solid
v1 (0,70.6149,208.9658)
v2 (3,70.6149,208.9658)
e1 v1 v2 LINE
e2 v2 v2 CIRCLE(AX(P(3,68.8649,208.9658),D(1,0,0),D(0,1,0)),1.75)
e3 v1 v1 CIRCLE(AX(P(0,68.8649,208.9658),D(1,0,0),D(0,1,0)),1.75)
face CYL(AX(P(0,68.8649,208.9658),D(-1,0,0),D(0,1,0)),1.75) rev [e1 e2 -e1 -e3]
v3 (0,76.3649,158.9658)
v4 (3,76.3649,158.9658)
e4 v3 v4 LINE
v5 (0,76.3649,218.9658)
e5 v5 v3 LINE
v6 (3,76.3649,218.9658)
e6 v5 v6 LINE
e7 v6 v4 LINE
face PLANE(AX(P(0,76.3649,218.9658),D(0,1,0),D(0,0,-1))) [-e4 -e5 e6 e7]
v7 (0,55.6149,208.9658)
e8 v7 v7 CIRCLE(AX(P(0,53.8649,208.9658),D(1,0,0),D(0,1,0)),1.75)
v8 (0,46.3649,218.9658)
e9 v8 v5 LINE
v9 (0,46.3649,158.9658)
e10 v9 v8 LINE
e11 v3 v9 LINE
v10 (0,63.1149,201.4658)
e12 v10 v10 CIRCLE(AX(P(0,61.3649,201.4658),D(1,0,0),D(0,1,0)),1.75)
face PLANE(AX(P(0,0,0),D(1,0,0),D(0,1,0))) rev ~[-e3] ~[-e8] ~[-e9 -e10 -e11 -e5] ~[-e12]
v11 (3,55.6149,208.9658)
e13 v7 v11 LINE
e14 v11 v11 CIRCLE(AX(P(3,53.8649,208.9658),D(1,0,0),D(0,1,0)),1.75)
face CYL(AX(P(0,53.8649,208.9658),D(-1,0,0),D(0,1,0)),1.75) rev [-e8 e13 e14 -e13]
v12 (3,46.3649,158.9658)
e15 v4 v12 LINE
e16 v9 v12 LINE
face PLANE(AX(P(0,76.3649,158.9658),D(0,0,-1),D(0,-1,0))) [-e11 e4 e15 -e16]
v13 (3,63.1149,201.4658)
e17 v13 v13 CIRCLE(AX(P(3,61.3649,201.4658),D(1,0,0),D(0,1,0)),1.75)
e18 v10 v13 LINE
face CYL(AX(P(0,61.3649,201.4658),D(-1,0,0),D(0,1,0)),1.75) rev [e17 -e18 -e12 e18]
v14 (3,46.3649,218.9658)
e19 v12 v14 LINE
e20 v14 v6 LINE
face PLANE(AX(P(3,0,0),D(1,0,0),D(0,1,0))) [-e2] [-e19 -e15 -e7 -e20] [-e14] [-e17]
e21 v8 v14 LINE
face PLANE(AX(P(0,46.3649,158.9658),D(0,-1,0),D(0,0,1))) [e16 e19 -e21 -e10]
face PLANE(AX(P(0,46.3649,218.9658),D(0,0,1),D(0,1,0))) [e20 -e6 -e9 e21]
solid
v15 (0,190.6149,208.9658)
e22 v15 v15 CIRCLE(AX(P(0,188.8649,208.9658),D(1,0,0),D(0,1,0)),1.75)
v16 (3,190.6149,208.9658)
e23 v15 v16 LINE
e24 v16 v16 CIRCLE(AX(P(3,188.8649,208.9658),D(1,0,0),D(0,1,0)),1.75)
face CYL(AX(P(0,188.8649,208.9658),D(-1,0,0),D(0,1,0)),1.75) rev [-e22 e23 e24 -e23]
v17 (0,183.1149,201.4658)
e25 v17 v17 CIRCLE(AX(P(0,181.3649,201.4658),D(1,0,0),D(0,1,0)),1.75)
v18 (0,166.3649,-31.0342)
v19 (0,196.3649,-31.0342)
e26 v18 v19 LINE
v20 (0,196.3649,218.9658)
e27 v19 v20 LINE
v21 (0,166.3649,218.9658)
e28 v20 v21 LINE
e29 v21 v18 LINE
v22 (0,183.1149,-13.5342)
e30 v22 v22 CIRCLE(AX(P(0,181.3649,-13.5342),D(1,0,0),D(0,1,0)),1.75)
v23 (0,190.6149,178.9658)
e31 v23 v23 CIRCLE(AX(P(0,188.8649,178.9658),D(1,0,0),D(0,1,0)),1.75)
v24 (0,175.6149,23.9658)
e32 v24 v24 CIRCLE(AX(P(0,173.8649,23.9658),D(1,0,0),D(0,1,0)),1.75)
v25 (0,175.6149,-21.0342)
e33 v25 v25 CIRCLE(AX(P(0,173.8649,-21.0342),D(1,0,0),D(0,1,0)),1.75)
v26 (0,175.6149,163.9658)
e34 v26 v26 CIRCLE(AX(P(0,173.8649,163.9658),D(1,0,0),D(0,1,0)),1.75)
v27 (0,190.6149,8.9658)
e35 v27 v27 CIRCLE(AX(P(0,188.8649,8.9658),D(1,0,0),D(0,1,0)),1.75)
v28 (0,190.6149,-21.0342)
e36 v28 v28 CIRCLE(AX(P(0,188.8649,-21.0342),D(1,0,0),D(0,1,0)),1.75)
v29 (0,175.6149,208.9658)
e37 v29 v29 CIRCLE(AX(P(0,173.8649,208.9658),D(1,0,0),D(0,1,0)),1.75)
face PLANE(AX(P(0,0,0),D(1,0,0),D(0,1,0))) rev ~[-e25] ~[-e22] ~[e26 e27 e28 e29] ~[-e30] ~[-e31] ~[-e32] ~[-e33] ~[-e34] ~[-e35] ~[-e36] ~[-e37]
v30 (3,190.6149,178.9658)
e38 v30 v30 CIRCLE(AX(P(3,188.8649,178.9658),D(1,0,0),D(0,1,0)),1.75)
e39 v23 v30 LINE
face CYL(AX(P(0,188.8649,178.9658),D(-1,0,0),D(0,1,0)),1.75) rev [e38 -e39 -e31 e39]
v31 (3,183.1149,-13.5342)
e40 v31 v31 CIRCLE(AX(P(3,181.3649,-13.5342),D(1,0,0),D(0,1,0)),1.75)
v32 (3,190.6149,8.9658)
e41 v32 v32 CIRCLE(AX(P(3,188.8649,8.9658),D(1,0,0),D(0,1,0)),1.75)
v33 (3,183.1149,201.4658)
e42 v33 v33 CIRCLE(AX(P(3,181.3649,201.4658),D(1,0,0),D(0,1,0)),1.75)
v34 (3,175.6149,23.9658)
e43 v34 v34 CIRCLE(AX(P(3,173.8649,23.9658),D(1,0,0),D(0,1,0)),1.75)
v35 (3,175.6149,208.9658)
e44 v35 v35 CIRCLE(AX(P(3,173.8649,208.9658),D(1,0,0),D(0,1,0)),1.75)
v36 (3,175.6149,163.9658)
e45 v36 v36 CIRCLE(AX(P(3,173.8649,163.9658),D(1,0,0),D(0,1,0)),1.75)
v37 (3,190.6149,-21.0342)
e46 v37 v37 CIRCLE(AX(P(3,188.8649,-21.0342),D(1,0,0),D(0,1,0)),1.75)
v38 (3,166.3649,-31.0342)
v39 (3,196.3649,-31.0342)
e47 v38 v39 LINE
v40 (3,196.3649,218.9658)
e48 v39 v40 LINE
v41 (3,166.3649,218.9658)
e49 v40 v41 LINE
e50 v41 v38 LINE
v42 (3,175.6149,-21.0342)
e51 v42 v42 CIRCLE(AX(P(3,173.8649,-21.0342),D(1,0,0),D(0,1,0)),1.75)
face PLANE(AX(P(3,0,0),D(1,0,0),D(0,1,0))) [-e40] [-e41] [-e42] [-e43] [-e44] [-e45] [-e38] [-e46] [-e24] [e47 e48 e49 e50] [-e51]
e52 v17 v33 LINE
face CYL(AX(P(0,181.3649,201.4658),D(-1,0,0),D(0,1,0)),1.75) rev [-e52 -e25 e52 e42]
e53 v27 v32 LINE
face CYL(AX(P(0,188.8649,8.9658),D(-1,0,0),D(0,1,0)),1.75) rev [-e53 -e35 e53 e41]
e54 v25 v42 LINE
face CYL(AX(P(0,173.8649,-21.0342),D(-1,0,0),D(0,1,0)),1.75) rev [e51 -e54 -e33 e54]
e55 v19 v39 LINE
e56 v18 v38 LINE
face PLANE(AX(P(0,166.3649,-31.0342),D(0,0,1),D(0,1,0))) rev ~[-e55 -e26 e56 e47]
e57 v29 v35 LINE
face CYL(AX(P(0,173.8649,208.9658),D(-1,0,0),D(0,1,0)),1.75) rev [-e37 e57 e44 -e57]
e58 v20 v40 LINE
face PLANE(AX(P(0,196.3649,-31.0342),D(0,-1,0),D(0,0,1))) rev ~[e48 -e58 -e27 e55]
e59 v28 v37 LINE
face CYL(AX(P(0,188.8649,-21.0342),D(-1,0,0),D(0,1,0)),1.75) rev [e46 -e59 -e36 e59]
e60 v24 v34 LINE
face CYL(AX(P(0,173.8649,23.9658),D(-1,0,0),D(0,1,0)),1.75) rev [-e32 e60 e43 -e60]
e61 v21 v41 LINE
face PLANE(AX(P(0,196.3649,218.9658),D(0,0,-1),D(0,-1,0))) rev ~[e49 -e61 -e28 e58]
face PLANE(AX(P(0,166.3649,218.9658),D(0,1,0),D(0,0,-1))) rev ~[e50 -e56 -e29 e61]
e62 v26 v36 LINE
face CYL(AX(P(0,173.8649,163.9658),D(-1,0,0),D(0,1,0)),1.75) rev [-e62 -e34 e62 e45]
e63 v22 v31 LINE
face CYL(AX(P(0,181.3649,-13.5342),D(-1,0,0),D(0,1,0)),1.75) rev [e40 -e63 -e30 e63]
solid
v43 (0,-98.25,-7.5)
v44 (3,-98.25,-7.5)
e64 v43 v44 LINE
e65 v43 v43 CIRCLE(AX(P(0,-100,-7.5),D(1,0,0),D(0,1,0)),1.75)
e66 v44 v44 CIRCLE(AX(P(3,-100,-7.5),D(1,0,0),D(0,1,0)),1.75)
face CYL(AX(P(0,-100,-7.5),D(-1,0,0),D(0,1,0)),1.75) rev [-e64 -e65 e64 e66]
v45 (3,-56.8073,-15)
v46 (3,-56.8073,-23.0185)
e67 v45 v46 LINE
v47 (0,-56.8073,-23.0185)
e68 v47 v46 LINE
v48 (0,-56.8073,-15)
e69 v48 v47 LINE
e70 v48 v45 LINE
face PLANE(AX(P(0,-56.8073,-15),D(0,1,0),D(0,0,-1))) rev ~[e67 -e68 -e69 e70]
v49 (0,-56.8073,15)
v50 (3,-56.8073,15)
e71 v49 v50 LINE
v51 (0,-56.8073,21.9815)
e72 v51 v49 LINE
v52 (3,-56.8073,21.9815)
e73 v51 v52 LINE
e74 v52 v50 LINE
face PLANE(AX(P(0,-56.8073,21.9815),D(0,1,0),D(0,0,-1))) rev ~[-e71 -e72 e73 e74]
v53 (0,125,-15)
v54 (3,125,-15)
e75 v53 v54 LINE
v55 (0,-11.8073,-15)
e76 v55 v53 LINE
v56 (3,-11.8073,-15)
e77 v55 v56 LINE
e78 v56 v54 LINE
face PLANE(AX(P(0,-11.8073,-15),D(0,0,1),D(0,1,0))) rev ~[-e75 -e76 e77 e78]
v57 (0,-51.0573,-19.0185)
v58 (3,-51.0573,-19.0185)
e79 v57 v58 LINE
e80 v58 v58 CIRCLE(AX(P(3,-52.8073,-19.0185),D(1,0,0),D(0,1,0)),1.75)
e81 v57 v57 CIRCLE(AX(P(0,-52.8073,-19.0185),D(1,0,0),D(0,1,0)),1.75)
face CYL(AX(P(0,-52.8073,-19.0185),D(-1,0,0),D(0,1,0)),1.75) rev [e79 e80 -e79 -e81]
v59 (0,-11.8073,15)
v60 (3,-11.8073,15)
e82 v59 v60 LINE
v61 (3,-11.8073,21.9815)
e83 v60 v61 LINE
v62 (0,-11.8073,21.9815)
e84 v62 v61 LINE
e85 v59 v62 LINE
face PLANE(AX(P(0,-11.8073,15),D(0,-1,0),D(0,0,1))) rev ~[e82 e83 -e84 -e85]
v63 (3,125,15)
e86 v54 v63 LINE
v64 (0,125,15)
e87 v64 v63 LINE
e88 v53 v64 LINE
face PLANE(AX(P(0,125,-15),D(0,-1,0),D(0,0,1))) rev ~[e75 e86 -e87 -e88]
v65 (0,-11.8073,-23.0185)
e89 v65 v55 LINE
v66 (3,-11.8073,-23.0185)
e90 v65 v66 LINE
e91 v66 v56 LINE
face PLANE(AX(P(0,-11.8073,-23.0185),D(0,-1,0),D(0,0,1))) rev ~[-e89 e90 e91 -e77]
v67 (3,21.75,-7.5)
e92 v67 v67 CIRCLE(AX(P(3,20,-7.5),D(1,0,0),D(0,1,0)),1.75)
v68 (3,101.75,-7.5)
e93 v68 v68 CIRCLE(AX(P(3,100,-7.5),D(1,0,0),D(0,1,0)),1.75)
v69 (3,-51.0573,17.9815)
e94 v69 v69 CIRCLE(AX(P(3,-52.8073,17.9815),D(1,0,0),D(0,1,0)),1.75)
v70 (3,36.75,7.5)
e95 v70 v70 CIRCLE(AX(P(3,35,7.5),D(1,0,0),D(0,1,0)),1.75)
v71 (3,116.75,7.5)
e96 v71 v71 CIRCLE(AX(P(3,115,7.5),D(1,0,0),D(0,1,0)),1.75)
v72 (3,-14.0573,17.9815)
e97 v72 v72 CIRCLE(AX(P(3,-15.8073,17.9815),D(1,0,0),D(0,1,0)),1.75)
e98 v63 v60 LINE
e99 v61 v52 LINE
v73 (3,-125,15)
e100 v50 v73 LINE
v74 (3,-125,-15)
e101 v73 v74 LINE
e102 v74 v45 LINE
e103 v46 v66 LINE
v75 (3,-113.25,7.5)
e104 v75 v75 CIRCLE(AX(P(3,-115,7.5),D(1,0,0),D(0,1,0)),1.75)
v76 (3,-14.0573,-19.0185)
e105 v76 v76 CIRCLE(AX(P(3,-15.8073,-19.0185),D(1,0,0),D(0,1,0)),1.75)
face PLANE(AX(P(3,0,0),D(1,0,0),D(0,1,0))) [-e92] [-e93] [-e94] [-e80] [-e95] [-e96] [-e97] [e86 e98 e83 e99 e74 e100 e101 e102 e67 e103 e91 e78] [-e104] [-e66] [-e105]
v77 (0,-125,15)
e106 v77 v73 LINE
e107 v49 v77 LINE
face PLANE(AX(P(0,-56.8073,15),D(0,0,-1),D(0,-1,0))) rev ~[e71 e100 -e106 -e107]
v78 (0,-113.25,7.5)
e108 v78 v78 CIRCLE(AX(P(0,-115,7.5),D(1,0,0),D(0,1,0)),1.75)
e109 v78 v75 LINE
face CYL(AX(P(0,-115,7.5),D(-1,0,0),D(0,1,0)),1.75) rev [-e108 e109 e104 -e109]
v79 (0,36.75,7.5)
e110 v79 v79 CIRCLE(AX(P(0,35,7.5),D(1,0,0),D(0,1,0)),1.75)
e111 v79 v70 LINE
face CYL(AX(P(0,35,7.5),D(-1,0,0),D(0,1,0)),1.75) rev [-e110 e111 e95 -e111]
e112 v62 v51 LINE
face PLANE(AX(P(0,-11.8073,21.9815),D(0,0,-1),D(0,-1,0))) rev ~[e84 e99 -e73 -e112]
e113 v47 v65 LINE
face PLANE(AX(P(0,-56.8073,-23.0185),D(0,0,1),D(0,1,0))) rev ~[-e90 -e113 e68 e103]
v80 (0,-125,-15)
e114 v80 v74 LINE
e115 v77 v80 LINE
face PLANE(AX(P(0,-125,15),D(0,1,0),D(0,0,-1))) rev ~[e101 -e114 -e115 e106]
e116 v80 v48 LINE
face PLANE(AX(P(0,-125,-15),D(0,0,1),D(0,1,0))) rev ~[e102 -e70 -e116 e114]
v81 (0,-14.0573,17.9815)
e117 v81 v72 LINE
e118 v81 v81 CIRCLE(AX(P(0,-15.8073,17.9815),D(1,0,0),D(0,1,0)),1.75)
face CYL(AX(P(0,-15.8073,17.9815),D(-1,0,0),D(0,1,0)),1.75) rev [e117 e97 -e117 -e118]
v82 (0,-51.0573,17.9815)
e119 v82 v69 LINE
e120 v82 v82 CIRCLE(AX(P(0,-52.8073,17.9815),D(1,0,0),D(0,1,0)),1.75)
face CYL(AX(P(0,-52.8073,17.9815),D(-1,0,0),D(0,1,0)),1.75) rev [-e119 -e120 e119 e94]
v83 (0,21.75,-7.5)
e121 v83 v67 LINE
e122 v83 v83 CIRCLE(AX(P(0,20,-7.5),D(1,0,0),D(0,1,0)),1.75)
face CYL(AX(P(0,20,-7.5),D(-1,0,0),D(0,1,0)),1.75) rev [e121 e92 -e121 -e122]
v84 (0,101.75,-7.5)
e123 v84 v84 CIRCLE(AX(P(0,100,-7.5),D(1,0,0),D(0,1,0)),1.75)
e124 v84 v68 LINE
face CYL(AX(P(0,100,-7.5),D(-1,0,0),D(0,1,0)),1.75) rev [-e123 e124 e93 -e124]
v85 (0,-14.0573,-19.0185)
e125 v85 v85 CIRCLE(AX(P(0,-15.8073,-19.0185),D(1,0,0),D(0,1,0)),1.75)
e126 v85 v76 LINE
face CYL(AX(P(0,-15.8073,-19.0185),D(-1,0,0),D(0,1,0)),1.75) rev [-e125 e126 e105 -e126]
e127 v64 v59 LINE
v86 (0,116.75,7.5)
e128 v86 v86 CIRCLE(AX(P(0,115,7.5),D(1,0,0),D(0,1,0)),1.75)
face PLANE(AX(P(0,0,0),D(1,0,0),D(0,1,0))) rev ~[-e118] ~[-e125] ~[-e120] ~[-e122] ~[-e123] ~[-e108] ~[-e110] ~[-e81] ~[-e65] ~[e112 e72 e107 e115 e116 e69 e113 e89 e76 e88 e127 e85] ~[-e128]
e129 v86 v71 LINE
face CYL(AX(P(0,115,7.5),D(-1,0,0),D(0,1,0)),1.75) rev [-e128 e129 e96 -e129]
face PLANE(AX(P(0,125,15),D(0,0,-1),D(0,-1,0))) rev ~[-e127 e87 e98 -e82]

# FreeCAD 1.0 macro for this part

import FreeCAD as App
import Part
import Sketcher

V = App.Vector


def add_polygon(sketch, points):
    """Adds a closed chain of lines whose ends are joined by coincident constraints."""
    first, n = sketch.GeometryCount, len(points)
    for a, b in zip(points, points[1:] + points[:1]):
        sketch.addGeometry(Part.LineSegment(App.Vector(*a, 0), App.Vector(*b, 0)), False)
    for i in range(n):
        sketch.addConstraint(Sketcher.Constraint("Coincident", first + i, 2, first + (i + 1) % n, 1))

doc = App.newDocument("Part")
body = doc.addObject("PartDesign::Body", "Body")
body.AllowCompound = True

# Sketch on YZ plane
sketch1 = doc.addObject("Sketcher::SketchObject", "Sketch")
body.addObject(sketch1)
sketch1.AttachmentSupport = (doc.YZ_Plane, [""])
sketch1.MapMode = "FlatFace"
add_polygon(sketch1, [(125, -15), (125, 15), (-11.8, 15), (-11.8, 22), (-56.8, 22), (-56.8, 15), (-125, 15), (-125, -15), (-56.8, -15), (-56.8, -23), (-11.8, -23), (-11.8, -15)])  # lines 0-11
sketch1.addGeometry(Part.Circle(V(20, -7.5, 0), V(0, 0, 1), 1.8), False)  # 12
sketch1.addGeometry(Part.Circle(V(35, 7.5, 0), V(0, 0, 1), 1.8), False)  # 13
sketch1.addGeometry(Part.Circle(V(100, -7.5, 0), V(0, 0, 1), 1.8), False)  # 14
sketch1.addGeometry(Part.Circle(V(115, 7.5, 0), V(0, 0, 1), 1.8), False)  # 15
sketch1.addGeometry(Part.Circle(V(-15.8, 18, 0), V(0, 0, 1), 1.8), False)  # 16
sketch1.addGeometry(Part.Circle(V(-52.8, 18, 0), V(0, 0, 1), 1.8), False)  # 17
sketch1.addGeometry(Part.Circle(V(-15.8, -19, 0), V(0, 0, 1), 1.8), False)  # 18
sketch1.addGeometry(Part.Circle(V(-52.8, -19, 0), V(0, 0, 1), 1.8), False)  # 19
sketch1.addGeometry(Part.Circle(V(-115, 7.5, 0), V(0, 0, 1), 1.8), False)  # 20
sketch1.addGeometry(Part.Circle(V(-100, -7.5, 0), V(0, 0, 1), 1.8), False)  # 21
add_polygon(sketch1, [(196.4, -31), (196.4, 219), (166.4, 219), (166.4, -31)])  # lines 22-25
sketch1.addGeometry(Part.Circle(V(173.9, -21, 0), V(0, 0, 1), 1.8), False)  # 26
sketch1.addGeometry(Part.Circle(V(188.9, -21, 0), V(0, 0, 1), 1.8), False)  # 27
sketch1.addGeometry(Part.Circle(V(181.4, -13.5, 0), V(0, 0, 1), 1.8), False)  # 28
sketch1.addGeometry(Part.Circle(V(188.9, 9, 0), V(0, 0, 1), 1.8), False)  # 29
sketch1.addGeometry(Part.Circle(V(173.9, 24, 0), V(0, 0, 1), 1.8), False)  # 30
sketch1.addGeometry(Part.Circle(V(173.9, 164, 0), V(0, 0, 1), 1.8), False)  # 31
sketch1.addGeometry(Part.Circle(V(188.9, 179, 0), V(0, 0, 1), 1.8), False)  # 32
sketch1.addGeometry(Part.Circle(V(181.4, 201.5, 0), V(0, 0, 1), 1.8), False)  # 33
sketch1.addGeometry(Part.Circle(V(173.9, 209, 0), V(0, 0, 1), 1.8), False)  # 34
sketch1.addGeometry(Part.Circle(V(188.9, 209, 0), V(0, 0, 1), 1.8), False)  # 35
add_polygon(sketch1, [(76.4, 219), (46.4, 219), (46.4, 159), (76.4, 159)])  # lines 36-39
sketch1.addGeometry(Part.Circle(V(61.4, 201.5, 0), V(0, 0, 1), 1.8), False)  # 40
sketch1.addGeometry(Part.Circle(V(53.9, 209, 0), V(0, 0, 1), 1.8), False)  # 41
sketch1.addGeometry(Part.Circle(V(68.9, 209, 0), V(0, 0, 1), 1.8), False)  # 42
sketch1.addConstraint(Sketcher.Constraint("Vertical", 0))
sketch1.addConstraint(Sketcher.Constraint("Horizontal", 1))
sketch1.addConstraint(Sketcher.Constraint("Vertical", 2))
sketch1.addConstraint(Sketcher.Constraint("Horizontal", 3))
sketch1.addConstraint(Sketcher.Constraint("Vertical", 4))
sketch1.addConstraint(Sketcher.Constraint("Horizontal", 5))
sketch1.addConstraint(Sketcher.Constraint("Vertical", 6))
sketch1.addConstraint(Sketcher.Constraint("Horizontal", 7))
sketch1.addConstraint(Sketcher.Constraint("Vertical", 8))
sketch1.addConstraint(Sketcher.Constraint("Horizontal", 9))
sketch1.addConstraint(Sketcher.Constraint("Vertical", 10))
sketch1.addConstraint(Sketcher.Constraint("Horizontal", 11))
sketch1.addConstraint(Sketcher.Constraint("Vertical", 22))
sketch1.addConstraint(Sketcher.Constraint("Horizontal", 23))
sketch1.addConstraint(Sketcher.Constraint("Vertical", 24))
sketch1.addConstraint(Sketcher.Constraint("Horizontal", 25))
sketch1.addConstraint(Sketcher.Constraint("Horizontal", 36))
sketch1.addConstraint(Sketcher.Constraint("Vertical", 37))
sketch1.addConstraint(Sketcher.Constraint("Horizontal", 38))
sketch1.addConstraint(Sketcher.Constraint("Vertical", 39))
sketch1.addConstraint(Sketcher.Constraint("Equal", 12, 13))
sketch1.addConstraint(Sketcher.Constraint("Equal", 13, 14))
sketch1.addConstraint(Sketcher.Constraint("Equal", 14, 15))
sketch1.addConstraint(Sketcher.Constraint("Equal", 15, 16))
sketch1.addConstraint(Sketcher.Constraint("Equal", 16, 17))
sketch1.addConstraint(Sketcher.Constraint("Equal", 17, 18))
sketch1.addConstraint(Sketcher.Constraint("Equal", 18, 19))
sketch1.addConstraint(Sketcher.Constraint("Equal", 19, 20))
sketch1.addConstraint(Sketcher.Constraint("Equal", 20, 21))
sketch1.addConstraint(Sketcher.Constraint("Equal", 21, 26))
sketch1.addConstraint(Sketcher.Constraint("Equal", 26, 27))
sketch1.addConstraint(Sketcher.Constraint("Equal", 27, 28))
sketch1.addConstraint(Sketcher.Constraint("Equal", 28, 29))
sketch1.addConstraint(Sketcher.Constraint("Equal", 29, 30))
sketch1.addConstraint(Sketcher.Constraint("Equal", 30, 31))
sketch1.addConstraint(Sketcher.Constraint("Equal", 31, 32))
sketch1.addConstraint(Sketcher.Constraint("Equal", 32, 33))
sketch1.addConstraint(Sketcher.Constraint("Equal", 33, 34))
sketch1.addConstraint(Sketcher.Constraint("Equal", 34, 35))
sketch1.addConstraint(Sketcher.Constraint("Equal", 35, 40))
sketch1.addConstraint(Sketcher.Constraint("Equal", 40, 41))
sketch1.addConstraint(Sketcher.Constraint("Equal", 41, 42))
sketch1.addConstraint(Sketcher.Constraint("Symmetric", 0, 2, 6, 2, -1, 1))
sketch1.addConstraint(Sketcher.Constraint("Symmetric", 15, 3, 20, 3, -2))
sketch1.addConstraint(Sketcher.Constraint("Symmetric", 14, 3, 21, 3, -2))
sketch1.addConstraint(Sketcher.Constraint("Symmetric", 4, 2, 7, 2, -1))
sketch1.addConstraint(Sketcher.Constraint("Symmetric", 1, 2, 10, 2, -1))
sketch1.addConstraint(Sketcher.Constraint("Horizontal", 12, 3, 14, 3))
sketch1.addConstraint(Sketcher.Constraint("Horizontal", 13, 3, 15, 3))
sketch1.addConstraint(Sketcher.Constraint("Horizontal", 16, 3, 17, 3))
sketch1.addConstraint(Sketcher.Constraint("Horizontal", 18, 3, 19, 3))
sketch1.addConstraint(Sketcher.Constraint("Horizontal", 26, 3, 27, 3))
sketch1.addConstraint(Sketcher.Constraint("Horizontal", 34, 3, 35, 3))
sketch1.addConstraint(Sketcher.Constraint("Horizontal", 33, 3, 40, 3))
sketch1.addConstraint(Sketcher.Constraint("Horizontal", 35, 3, 41, 3))
sketch1.addConstraint(Sketcher.Constraint("Horizontal", 41, 3, 42, 3))
sketch1.addConstraint(Sketcher.Constraint("Horizontal", 23, 2, 36, 2))
sketch1.addConstraint(Sketcher.Constraint("Vertical", 16, 3, 18, 3))
sketch1.addConstraint(Sketcher.Constraint("Vertical", 17, 3, 19, 3))
sketch1.addConstraint(Sketcher.Constraint("Vertical", 27, 3, 29, 3))
sketch1.addConstraint(Sketcher.Constraint("Vertical", 26, 3, 30, 3))
sketch1.addConstraint(Sketcher.Constraint("Vertical", 30, 3, 31, 3))
sketch1.addConstraint(Sketcher.Constraint("Vertical", 29, 3, 32, 3))
sketch1.addConstraint(Sketcher.Constraint("Vertical", 28, 3, 33, 3))
sketch1.addConstraint(Sketcher.Constraint("Vertical", 31, 3, 34, 3))
sketch1.addConstraint(Sketcher.Constraint("Vertical", 32, 3, 35, 3))
sketch1.addConstraint(Sketcher.Constraint("Equal", 25, 36))
sketch1.addConstraint(Sketcher.Constraint("Equal", 38, 0))
sketch1.addConstraint(Sketcher.Constraint("Diameter", 12, 3.5))
sketch1.addConstraint(Sketcher.Constraint("DistanceX", 3, 2, 3, 1, 45.0))
sketch1.addConstraint(Sketcher.Constraint("DistanceX", 23, 2, 23, 1, 30.0))
sketch1.addConstraint(Sketcher.Constraint("DistanceY", 22, 1, 22, 2, 250.0))
sketch1.addConstraint(Sketcher.Constraint("DistanceY", 37, 2, 37, 1, 60.0))
sketch1.addConstraint(Sketcher.Constraint("DistanceX", 12, 3, 13, 3, 15.0))
sketch1.addConstraint(Sketcher.Constraint("DistanceY", 12, 3, 13, 3, 15.0))
sketch1.addConstraint(Sketcher.Constraint("DistanceX", 14, 3, 15, 3, 15.0))
sketch1.addConstraint(Sketcher.Constraint("DistanceX", 26, 3, 27, 3, 15.0))
sketch1.addConstraint(Sketcher.Constraint("DistanceY", 27, 3, 29, 3, 30.0))
sketch1.addConstraint(Sketcher.Constraint("DistanceY", 29, 3, 30, 3, 15.0))
sketch1.addConstraint(Sketcher.Constraint("DistanceY", 31, 3, 32, 3, 15.0))
sketch1.addConstraint(Sketcher.Constraint("DistanceY", 32, 3, 34, 3, 30.0))
sketch1.addConstraint(Sketcher.Constraint("DistanceX", 41, 3, 42, 3, 15.0))
sketch1.addConstraint(Sketcher.Constraint("DistanceX", 15, 3, 0, 2, 10.0))
sketch1.addConstraint(Sketcher.Constraint("DistanceX", 16, 3, 1, 2, 4.0))
sketch1.addConstraint(Sketcher.Constraint("DistanceY", 16, 3, 2, 2, 4.0))
sketch1.addConstraint(Sketcher.Constraint("DistanceX", 3, 2, 17, 3, 4.0))
sketch1.addConstraint(Sketcher.Constraint("DistanceY", 8, 2, 19, 3, 4.0))
sketch1.addConstraint(Sketcher.Constraint("DistanceY", 35, 3, 22, 2, 10.0))
sketch1.addConstraint(Sketcher.Constraint("DistanceX", 33, 3, 22, 2, 15.0))
sketch1.addConstraint(Sketcher.Constraint("DistanceY", 24, 2, 26, 3, 10.0))
sketch1.addConstraint(Sketcher.Constraint("DistanceX", 36, 2, 40, 3, 15.0))
sketch1.addConstraint(Sketcher.Constraint("DistanceY", 12, 3, -1, 1, 7.5))
sketch1.addConstraint(Sketcher.Constraint("DistanceX", 26, 3, 28, 3, 7.5))
sketch1.addConstraint(Sketcher.Constraint("DistanceY", 26, 3, 28, 3, 7.5))
sketch1.addConstraint(Sketcher.Constraint("DistanceY", 33, 3, 34, 3, 7.5))
sketch1.addConstraint(Sketcher.Constraint("DistanceX", 41, 3, 40, 3, 7.5))
sketch1.addConstraint(Sketcher.Constraint("DistanceX", -1, 1, 12, 3, 20.0))
sketch1.addConstraint(Sketcher.Constraint("DistanceX", -1, 1, 14, 3, 100.0))
sketch1.addConstraint(Sketcher.Constraint("DistanceY", 18, 3, 16, 3, 37.0))
sketch1.addConstraint(Sketcher.Constraint("DistanceX", 40, 3, 33, 3, 120.0))
sketch1.addConstraint(Sketcher.Constraint("DistanceX", 1, 2, 1, 1, 136.8073))
sketch1.addConstraint(Sketcher.Constraint("DistanceY", 2, 1, 2, 2, 6.9815))
sketch1.addConstraint(Sketcher.Constraint("DistanceX", -1, 1, 26, 3, 173.865))
sketch1.addConstraint(Sketcher.Constraint("DistanceY", 26, 3, -1, 1, 21.0342))
pad1 = doc.addObject("PartDesign::Pad", "Pad")
body.addObject(pad1)
pad1.Profile = sketch1
pad1.Length = 3

doc.recompute()
